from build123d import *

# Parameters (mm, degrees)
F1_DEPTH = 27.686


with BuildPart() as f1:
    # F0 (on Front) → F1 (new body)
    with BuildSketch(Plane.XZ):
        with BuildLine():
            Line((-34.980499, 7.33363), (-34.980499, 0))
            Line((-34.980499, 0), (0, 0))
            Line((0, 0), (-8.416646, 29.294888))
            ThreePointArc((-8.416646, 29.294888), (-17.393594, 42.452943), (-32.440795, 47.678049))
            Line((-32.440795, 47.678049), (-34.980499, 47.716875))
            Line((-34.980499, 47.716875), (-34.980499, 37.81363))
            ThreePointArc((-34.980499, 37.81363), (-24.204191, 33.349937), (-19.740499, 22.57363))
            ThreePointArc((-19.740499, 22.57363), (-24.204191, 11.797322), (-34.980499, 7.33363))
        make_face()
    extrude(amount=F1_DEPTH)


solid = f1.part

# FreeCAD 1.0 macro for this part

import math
import FreeCAD as App
import Part
import Sketcher
Q = App.Units.Quantity

doc = App.newDocument("Part")
body = doc.addObject("PartDesign::Body", "Body")

# Sketch on XZ plane
sketch1 = doc.addObject("Sketcher::SketchObject", "Sketch")
body.addObject(sketch1)
sketch1.AttachmentSupport = (doc.XZ_Plane, [""])
sketch1.MapMode = "FlatFace"
sketch1.addGeometry(Part.LineSegment(App.Vector(-35, 7.3, 0), App.Vector(-35, 0, 0)), False)
sketch1.addGeometry(Part.LineSegment(App.Vector(-35, 0, 0), App.Vector(0, 0, 0)), False)
sketch1.addGeometry(Part.LineSegment(App.Vector(0, 0, 0), App.Vector(-8.4, 29.3, 0)), False)
sketch1.addGeometry(Part.ArcOfCircle(Part.Circle(App.Vector(-32.8, 22.3, 0), App.Vector(0, 0, 1), 25.4), math.radians(16), math.radians(89)), False)
sketch1.addGeometry(Part.LineSegment(App.Vector(-32.4, 47.7, 0), App.Vector(-35, 47.7, 0)), False)
sketch1.addGeometry(Part.LineSegment(App.Vector(-35, 47.7, 0), App.Vector(-35, 37.8, 0)), False)
sketch1.addGeometry(Part.ArcOfCircle(Part.Circle(App.Vector(-35, 22.6, 0), App.Vector(0, 0, 1), 15.2), math.radians(0), math.radians(90)), False)
sketch1.addGeometry(Part.ArcOfCircle(Part.Circle(App.Vector(-35, 22.6, 0), App.Vector(0, 0, 1), 15.2), math.radians(-90), math.radians(0)), False)
sketch1.addConstraint(Sketcher.Constraint("Coincident", 0, 2, 1, 1))
sketch1.addConstraint(Sketcher.Constraint("Coincident", 1, 2, 2, 1))
sketch1.addConstraint(Sketcher.Constraint("Tangent", 2, 2, 3, 1))
sketch1.addConstraint(Sketcher.Constraint("Tangent", 3, 2, 4, 1))
sketch1.addConstraint(Sketcher.Constraint("Coincident", 4, 2, 5, 1))
sketch1.addConstraint(Sketcher.Constraint("Coincident", 5, 2, 6, 2))
sketch1.addConstraint(Sketcher.Constraint("Tangent", 6, 1, 7, 2))
sketch1.addConstraint(Sketcher.Constraint("Coincident", 7, 1, 0, 1))
sketch1.addConstraint(Sketcher.Constraint("Vertical", 0))
sketch1.addConstraint(Sketcher.Constraint("Horizontal", 1))
sketch1.addConstraint(Sketcher.Constraint("Vertical", 5))
sketch1.addConstraint(Sketcher.Constraint("Coincident", 1, 2, -1, 1))
sketch1.addConstraint(Sketcher.Constraint("Equal", 6, 7))
sketch1.addConstraint(Sketcher.Constraint("Vertical", 6, 3, 0, 2))
sketch1.addConstraint(Sketcher.Constraint("Vertical", 0, 2, 4, 2))
sketch1.addConstraint(Sketcher.Constraint("Radius", 3, Q("1 in")))
sketch1.addConstraint(Sketcher.Constraint("Radius", 6, Q("0.6 in")))
sketch1.addConstraint(Sketcher.Constraint("Distance", 2, Q("1.2 in")))
sketch1.addConstraint(Sketcher.Constraint("Distance", 4, Q("0.1 in")))
sketch1.addConstraint(Sketcher.Constraint("DistanceY", 6, 1, 5, 2, Q("0.6 in")))
sketch1.addConstraint(Sketcher.Constraint("DistanceX", 1, 1, 1, 2, 34.980499))
sketch1.addConstraint(Sketcher.Constraint("DistanceY", 0, 2, 0, 1, 7.33363))
sketch1.addConstraint(Sketcher.Constraint("DistanceY", 5, 2, 5, 1, 9.903245))
pad1 = doc.addObject("PartDesign::Pad", "Pad")
body.addObject(pad1)
pad1.Profile = sketch1
pad1.Length = Q("1.09 in")

doc.recompute()
